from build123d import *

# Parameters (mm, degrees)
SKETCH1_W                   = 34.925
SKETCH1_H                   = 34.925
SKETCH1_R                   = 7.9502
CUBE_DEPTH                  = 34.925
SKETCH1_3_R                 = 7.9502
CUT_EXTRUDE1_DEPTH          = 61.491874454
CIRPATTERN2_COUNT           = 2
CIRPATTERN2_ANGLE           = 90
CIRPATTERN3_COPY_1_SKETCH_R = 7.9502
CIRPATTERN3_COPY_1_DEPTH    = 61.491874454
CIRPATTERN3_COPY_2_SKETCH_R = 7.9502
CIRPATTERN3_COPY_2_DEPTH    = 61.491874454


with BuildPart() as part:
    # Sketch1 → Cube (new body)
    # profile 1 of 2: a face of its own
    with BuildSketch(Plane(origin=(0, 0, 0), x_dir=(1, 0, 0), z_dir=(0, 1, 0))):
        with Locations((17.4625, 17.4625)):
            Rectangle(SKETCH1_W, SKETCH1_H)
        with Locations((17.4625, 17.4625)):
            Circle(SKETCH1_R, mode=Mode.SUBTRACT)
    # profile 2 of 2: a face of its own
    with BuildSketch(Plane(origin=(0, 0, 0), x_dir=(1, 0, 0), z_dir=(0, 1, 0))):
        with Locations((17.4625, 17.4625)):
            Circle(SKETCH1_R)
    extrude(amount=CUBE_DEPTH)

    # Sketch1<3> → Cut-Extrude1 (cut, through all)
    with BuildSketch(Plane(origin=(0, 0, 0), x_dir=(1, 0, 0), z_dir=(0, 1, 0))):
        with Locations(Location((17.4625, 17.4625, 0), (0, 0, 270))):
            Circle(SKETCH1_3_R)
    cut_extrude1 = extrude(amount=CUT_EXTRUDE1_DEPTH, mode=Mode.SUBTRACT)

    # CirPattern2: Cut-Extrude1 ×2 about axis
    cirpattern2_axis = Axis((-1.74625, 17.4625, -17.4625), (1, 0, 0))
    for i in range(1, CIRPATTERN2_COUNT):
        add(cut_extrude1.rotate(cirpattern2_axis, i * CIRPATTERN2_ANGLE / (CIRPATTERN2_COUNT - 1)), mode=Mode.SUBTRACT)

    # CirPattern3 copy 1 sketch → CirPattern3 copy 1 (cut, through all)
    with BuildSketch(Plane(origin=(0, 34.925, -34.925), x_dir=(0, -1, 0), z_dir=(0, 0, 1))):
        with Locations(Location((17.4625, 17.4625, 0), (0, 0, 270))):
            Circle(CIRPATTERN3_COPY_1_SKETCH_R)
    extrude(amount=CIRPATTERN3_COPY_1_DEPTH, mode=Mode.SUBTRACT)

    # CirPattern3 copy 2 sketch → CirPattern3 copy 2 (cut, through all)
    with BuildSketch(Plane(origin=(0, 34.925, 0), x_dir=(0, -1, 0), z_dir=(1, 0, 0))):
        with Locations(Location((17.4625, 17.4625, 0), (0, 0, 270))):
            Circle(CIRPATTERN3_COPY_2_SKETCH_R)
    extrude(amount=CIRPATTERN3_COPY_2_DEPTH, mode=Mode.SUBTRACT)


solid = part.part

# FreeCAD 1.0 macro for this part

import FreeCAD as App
import Part
import Sketcher
from FreeCAD import Vector
Q = App.Units.Quantity

doc = App.newDocument("Part")
body = doc.addObject("PartDesign::Body", "Body")

# Sketch on XZ plane
sketch1 = body.newObject("Sketcher::SketchObject", "Sketch")
sketch1.AttachmentSupport = (doc.getObject("XZ_Plane"), [""])
sketch1.MapMode = "FlatFace"
sketch1.addGeometry(Part.LineSegment(Vector(0, -35, 0), Vector(0, 0, 0)), False)
sketch1.addGeometry(Part.LineSegment(Vector(0, 0, 0), Vector(35, 0, 0)), False)
sketch1.addGeometry(Part.LineSegment(Vector(35, 0, 0), Vector(35, -35, 0)), False)
sketch1.addGeometry(Part.LineSegment(Vector(35, -35, 0), Vector(0, -35, 0)), False)
sketch1.addConstraint(Sketcher.Constraint("Coincident", 0, 2, 1, 1))
sketch1.addConstraint(Sketcher.Constraint("Coincident", 1, 2, 2, 1))
sketch1.addConstraint(Sketcher.Constraint("Coincident", 2, 2, 3, 1))
sketch1.addConstraint(Sketcher.Constraint("Coincident", 3, 2, 0, 1))
sketch1.addConstraint(Sketcher.Constraint("Vertical", 0))
sketch1.addConstraint(Sketcher.Constraint("Horizontal", 1))
sketch1.addConstraint(Sketcher.Constraint("Vertical", 2))
sketch1.addConstraint(Sketcher.Constraint("Horizontal", 3))
sketch1.addConstraint(Sketcher.Constraint("Coincident", 0, 2, -1, 1))
sketch1.addConstraint(Sketcher.Constraint("Equal", 3, 0))
sketch1.addConstraint(Sketcher.Constraint("DistanceX", 1, 1, 1, 2, Q("1.375 in")))
pad1 = body.newObject("PartDesign::Pad", "Pad")
pad1.Profile = sketch1
pad1.Length = Q("1.375 in")
pad1.Reversed = True

# Sketch on XZ plane
sketch2 = body.newObject("Sketcher::SketchObject", "Sketch001")
sketch2.AttachmentSupport = (doc.getObject("XZ_Plane"), [""])
sketch2.MapMode = "FlatFace"
sketch2.addGeometry(Part.Circle(Vector(17, -17, 0), Vector(0, 0, 1), 8), False)
sketch2.addConstraint(Sketcher.Constraint("Diameter", 0, Q("0.626 in")))
sketch2.addConstraint(Sketcher.Constraint("DistanceX", -1, 1, 0, 3, Q("0.6875 in")))
sketch2.addConstraint(Sketcher.Constraint("DistanceY", 0, 3, -1, 1, Q("0.6875 in")))
pocket1 = body.newObject("PartDesign::Pocket", "Pocket")
pocket1.Profile = sketch2
pocket1.Type = "ThroughAll"
doc.recompute()

datumline = body.newObject("PartDesign::Line", "DatumLine")
datumline.Placement = App.Placement(Vector(0, 17.4625, -17.4625), App.Rotation(Vector(0, 0, 1), Vector(1, 0, 0)))
polarpattern = body.newObject("PartDesign::PolarPattern", "PolarPattern")
polarpattern.Originals = [pocket1]
polarpattern.Axis = (datumline, [""])
polarpattern.Angle = 90
polarpattern.Occurrences = 2
body.Tip = polarpattern

# Sketch on XY plane
sketch3 = body.newObject("Sketcher::SketchObject", "Sketch002")
sketch3.AttachmentSupport = (doc.getObject("XY_Plane"), [""])
sketch3.MapMode = "FlatFace"
sketch3.AttachmentOffset = App.Placement(Vector(0, 0, -1.375 * 25.4), App.Rotation())
sketch3.addGeometry(Part.Circle(Vector(17, 17, 0), Vector(0, 0, 1), 8), False)
sketch3.addConstraint(Sketcher.Constraint("Diameter", 0, Q("0.626 in")))
sketch3.addConstraint(Sketcher.Constraint("DistanceX", -1, 1, 0, 3, Q("0.6875 in")))
sketch3.addConstraint(Sketcher.Constraint("DistanceY", -1, 1, 0, 3, Q("0.6875 in")))
pocket2 = body.newObject("PartDesign::Pocket", "Pocket001")
pocket2.Profile = sketch3
pocket2.Type = "ThroughAll"
pocket2.Reversed = True

# Sketch on YZ plane
sketch4 = body.newObject("Sketcher::SketchObject", "Sketch003")
sketch4.AttachmentSupport = (doc.getObject("YZ_Plane"), [""])
sketch4.MapMode = "FlatFace"
sketch4.addGeometry(Part.Circle(Vector(17, -17, 0), Vector(0, 0, 1), 8), False)
sketch4.addConstraint(Sketcher.Constraint("Diameter", 0, Q("0.626 in")))
sketch4.addConstraint(Sketcher.Constraint("DistanceX", -1, 1, 0, 3, Q("0.6875 in")))
sketch4.addConstraint(Sketcher.Constraint("DistanceY", 0, 3, -1, 1, Q("0.6875 in")))
pocket3 = body.newObject("PartDesign::Pocket", "Pocket002")
pocket3.Profile = sketch4
pocket3.Type = "ThroughAll"
pocket3.Reversed = True

doc.recompute()
